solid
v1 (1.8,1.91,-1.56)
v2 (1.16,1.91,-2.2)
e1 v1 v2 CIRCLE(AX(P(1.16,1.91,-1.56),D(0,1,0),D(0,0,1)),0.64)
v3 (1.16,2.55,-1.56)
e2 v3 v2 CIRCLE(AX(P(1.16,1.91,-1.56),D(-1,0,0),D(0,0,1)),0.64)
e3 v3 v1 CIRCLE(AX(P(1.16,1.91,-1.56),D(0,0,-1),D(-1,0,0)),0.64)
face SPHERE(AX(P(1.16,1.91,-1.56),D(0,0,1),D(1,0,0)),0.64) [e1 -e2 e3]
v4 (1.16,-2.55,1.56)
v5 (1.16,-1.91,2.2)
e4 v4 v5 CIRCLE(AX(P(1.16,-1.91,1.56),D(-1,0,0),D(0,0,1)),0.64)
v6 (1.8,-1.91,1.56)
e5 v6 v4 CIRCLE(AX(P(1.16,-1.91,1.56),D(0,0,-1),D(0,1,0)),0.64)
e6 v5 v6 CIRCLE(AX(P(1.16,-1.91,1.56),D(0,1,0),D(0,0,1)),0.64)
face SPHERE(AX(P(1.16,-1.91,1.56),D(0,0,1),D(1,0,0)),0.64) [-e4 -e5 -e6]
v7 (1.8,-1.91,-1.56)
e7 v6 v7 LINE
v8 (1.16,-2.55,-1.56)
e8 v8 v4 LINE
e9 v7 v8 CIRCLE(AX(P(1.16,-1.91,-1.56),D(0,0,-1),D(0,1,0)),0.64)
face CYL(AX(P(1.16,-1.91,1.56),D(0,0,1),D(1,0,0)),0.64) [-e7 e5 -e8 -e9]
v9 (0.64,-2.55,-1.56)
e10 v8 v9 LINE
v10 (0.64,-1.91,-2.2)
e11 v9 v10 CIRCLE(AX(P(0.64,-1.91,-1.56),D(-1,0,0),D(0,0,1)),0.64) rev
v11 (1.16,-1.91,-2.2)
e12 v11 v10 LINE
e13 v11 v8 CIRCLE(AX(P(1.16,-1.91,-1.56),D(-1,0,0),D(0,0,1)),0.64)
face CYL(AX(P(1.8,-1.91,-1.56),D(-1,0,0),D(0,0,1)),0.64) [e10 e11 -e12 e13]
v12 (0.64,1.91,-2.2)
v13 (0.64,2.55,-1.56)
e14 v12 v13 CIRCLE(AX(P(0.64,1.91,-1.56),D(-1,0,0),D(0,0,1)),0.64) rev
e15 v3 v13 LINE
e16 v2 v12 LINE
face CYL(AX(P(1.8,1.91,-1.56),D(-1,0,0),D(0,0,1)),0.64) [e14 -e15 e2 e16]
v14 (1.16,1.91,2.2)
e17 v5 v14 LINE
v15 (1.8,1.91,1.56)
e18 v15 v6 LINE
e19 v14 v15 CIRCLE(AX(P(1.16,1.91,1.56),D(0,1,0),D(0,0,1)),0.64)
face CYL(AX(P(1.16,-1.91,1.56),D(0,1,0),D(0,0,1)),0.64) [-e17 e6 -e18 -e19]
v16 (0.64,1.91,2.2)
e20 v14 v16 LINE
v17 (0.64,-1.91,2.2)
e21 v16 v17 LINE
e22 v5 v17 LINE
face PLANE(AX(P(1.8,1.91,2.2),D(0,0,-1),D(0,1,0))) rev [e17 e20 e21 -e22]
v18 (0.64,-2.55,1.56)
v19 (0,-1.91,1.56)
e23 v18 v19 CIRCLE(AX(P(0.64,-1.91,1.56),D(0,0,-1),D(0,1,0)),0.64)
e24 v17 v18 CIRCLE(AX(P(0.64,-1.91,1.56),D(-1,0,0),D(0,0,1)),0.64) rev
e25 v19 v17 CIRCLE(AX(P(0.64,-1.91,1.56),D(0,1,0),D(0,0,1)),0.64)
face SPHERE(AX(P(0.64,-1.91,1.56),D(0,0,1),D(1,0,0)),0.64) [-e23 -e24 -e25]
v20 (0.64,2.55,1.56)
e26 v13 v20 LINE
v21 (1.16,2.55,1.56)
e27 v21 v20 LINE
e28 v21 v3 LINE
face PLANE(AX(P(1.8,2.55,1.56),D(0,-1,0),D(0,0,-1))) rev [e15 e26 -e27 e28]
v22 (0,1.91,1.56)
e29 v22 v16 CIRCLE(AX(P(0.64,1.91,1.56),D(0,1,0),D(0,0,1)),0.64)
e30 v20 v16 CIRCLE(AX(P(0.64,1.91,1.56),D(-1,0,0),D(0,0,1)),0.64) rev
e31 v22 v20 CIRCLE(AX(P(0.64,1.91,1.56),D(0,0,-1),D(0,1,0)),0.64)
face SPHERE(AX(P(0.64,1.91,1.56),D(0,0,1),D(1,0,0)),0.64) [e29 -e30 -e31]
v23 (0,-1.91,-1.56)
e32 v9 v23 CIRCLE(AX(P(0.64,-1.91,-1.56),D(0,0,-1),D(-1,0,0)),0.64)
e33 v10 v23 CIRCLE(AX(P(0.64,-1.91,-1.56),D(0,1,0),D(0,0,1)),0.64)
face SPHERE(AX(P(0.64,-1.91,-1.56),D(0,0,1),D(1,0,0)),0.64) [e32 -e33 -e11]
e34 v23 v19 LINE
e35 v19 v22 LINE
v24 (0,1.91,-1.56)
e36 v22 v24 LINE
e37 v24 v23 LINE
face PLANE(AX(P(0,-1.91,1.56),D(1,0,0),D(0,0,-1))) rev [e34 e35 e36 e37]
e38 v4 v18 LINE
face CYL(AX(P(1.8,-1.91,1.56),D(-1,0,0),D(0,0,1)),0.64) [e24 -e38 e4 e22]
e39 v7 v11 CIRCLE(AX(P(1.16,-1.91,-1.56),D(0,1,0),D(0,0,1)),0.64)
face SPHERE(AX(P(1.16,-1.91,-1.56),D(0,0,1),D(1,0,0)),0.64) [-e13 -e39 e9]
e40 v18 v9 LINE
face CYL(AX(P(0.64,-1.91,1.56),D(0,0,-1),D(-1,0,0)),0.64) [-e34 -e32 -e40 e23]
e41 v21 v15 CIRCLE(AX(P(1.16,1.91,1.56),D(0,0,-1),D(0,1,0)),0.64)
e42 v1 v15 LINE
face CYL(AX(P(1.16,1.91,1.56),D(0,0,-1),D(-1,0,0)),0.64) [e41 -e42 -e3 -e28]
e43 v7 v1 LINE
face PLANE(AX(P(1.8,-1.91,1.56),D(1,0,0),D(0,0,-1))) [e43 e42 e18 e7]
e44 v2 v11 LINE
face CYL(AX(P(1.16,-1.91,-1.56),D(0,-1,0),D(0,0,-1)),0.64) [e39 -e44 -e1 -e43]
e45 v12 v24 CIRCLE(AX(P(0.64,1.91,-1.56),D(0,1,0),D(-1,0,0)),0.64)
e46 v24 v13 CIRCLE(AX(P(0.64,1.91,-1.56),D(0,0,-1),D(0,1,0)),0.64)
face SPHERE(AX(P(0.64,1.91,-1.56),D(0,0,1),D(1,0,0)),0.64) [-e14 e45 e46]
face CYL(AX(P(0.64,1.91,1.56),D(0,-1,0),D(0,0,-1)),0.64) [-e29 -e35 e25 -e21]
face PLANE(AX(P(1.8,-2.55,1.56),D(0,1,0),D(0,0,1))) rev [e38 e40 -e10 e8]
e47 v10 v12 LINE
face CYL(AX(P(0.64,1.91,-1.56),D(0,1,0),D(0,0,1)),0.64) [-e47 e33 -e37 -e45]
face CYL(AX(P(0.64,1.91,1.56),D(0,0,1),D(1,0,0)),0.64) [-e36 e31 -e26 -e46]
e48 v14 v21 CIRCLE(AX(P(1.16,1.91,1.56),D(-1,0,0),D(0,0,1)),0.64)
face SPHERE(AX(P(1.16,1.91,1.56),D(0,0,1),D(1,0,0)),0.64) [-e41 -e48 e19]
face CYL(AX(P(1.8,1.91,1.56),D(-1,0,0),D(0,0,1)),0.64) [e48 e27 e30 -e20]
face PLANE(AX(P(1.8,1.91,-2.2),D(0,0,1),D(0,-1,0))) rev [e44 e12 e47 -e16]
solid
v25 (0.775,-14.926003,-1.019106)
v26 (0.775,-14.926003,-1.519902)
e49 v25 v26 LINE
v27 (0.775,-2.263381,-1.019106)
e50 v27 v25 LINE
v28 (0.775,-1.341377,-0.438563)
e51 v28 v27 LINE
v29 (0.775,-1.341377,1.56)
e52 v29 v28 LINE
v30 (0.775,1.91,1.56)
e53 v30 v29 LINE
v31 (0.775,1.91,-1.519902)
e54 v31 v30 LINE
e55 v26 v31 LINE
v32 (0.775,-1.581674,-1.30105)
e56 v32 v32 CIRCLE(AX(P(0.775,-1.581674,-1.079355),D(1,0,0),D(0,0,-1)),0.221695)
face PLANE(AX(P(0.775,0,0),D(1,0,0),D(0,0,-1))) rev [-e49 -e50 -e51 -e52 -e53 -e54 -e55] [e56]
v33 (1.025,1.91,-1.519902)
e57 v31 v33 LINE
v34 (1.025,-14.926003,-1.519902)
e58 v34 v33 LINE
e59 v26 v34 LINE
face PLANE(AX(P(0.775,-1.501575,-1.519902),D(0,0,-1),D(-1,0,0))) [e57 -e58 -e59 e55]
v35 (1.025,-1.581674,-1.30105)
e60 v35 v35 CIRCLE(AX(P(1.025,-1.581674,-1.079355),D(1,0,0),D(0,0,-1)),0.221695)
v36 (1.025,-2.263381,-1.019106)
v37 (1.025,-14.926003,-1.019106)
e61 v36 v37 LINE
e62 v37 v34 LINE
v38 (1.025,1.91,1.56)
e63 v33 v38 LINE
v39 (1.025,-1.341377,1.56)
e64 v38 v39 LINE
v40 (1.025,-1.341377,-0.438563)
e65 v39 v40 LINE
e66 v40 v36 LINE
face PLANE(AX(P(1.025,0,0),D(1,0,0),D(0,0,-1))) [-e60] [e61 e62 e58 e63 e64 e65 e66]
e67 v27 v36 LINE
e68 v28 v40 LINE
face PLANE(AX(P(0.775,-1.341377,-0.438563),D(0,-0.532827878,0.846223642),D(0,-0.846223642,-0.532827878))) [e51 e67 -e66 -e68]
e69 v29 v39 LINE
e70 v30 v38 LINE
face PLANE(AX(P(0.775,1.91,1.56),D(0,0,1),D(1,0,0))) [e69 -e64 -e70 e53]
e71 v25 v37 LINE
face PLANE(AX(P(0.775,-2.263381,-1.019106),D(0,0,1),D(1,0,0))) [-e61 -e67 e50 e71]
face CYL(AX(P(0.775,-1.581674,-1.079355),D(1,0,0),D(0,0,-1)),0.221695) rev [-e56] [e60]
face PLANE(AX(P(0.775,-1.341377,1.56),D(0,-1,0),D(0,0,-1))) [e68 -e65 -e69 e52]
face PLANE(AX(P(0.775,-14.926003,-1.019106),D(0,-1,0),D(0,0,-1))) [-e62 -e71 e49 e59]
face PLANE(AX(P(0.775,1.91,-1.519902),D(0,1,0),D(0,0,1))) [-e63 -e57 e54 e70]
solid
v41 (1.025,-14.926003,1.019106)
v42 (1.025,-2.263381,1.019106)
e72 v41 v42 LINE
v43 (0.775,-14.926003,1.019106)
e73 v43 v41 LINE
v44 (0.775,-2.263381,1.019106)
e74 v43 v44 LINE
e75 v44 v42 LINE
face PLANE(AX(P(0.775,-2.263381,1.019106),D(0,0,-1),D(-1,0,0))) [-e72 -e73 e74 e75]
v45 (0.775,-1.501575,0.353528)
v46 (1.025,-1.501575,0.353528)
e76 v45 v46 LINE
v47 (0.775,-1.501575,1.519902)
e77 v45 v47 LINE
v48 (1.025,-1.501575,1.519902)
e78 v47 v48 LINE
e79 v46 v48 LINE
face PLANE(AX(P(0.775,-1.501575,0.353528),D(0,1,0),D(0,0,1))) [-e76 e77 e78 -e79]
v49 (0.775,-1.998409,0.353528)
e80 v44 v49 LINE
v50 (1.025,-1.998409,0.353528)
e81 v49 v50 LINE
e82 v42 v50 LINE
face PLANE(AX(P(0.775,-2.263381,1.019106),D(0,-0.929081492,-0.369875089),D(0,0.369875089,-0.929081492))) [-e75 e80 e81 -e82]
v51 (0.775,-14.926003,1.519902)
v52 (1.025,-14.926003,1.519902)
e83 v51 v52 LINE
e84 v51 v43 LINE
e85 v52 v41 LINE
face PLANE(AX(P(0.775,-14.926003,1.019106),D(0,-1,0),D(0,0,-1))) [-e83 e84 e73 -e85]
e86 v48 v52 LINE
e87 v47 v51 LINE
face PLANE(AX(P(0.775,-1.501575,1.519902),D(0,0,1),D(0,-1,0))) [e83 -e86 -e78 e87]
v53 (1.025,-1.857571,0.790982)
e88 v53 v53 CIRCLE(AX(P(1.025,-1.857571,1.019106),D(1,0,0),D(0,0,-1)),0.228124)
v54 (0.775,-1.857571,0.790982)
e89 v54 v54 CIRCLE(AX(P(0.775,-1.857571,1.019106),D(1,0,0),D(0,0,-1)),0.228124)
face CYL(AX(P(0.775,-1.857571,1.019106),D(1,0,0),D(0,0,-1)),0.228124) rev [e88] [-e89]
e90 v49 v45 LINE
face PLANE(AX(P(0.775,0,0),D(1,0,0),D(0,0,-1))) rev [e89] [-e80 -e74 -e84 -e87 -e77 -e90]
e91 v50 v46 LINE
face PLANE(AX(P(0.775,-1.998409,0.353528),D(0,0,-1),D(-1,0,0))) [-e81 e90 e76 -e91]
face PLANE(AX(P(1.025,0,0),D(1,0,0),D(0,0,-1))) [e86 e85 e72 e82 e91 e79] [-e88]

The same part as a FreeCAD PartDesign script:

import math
import FreeCAD as App
import Part
import Sketcher

V = App.Vector


def edges_at(feature, points):
    """Names of the edges that pass closest to the given points."""
    edges = feature.Shape.Edges
    near = lambda p: min(range(len(edges)), key=lambda i: edges[i].distToShape(Part.Vertex(*p))[0])
    return sorted({f"Edge{near(p) + 1}" for p in points})


def add_polygon(sketch, points):
    """Adds a closed chain of lines whose ends are joined by coincident constraints."""
    first, n = sketch.GeometryCount, len(points)
    for a, b in zip(points, points[1:] + points[:1]):
        sketch.addGeometry(Part.LineSegment(App.Vector(*a, 0), App.Vector(*b, 0)), False)
    for i in range(n):
        sketch.addConstraint(Sketcher.Constraint("Coincident", first + i, 2, first + (i + 1) % n, 1))

doc = App.newDocument("Part")
body = doc.addObject("PartDesign::Body", "Body")

sketch1 = doc.addObject("Sketcher::SketchObject", "Sketch")
body.addObject(sketch1)
sketch1.AttachmentSupport = (doc.YZ_Plane, [""])
sketch1.MapMode = "FlatFace"
sketch1.addGeometry([
    Part.LineSegment(V(2.55, -1.56, 0), V(2.55, 1.56, 0)),
    Part.ArcOfCircle(Part.Circle(V(1.91, 1.56, 0), V(0, 0, 1), 0.64), math.radians(0), math.radians(90)),
    Part.LineSegment(V(1.91, 2.2, 0), V(-1.91, 2.2, 0)),
    Part.ArcOfCircle(Part.Circle(V(-1.91, 1.56, 0), V(0, 0, 1), 0.64), math.radians(90), math.radians(180)),
    Part.LineSegment(V(-2.55, 1.56, 0), V(-2.55, -1.56, 0)),
    Part.ArcOfCircle(Part.Circle(V(-1.91, -1.56, 0), V(0, 0, 1), 0.64), math.radians(180), math.radians(270)),
    Part.LineSegment(V(-1.91, -2.2, 0), V(1.91, -2.2, 0)),
    Part.ArcOfCircle(Part.Circle(V(1.91, -1.56, 0), V(0, 0, 1), 0.64), math.radians(-90), math.radians(0)),
], False)
sketch1.addConstraint([
    Sketcher.Constraint("Tangent", 0, 2, 1, 1),
    Sketcher.Constraint("Tangent", 1, 2, 2, 1),
    Sketcher.Constraint("Tangent", 2, 2, 3, 1),
    Sketcher.Constraint("Tangent", 3, 2, 4, 1),
    Sketcher.Constraint("Tangent", 4, 2, 5, 1),
    Sketcher.Constraint("Tangent", 5, 2, 6, 1),
    Sketcher.Constraint("Tangent", 6, 2, 7, 1),
    Sketcher.Constraint("Tangent", 7, 2, 0, 1),
    Sketcher.Constraint("Vertical", 0),
    Sketcher.Constraint("Horizontal", 2),
    Sketcher.Constraint("Vertical", 4),
    Sketcher.Constraint("Horizontal", 6),
    Sketcher.Constraint("Equal", 1, 3),
    Sketcher.Constraint("Equal", 3, 5),
    Sketcher.Constraint("Equal", 5, 7),
    Sketcher.Constraint("Symmetric", 1, 3, 5, 3, -1, 1),
    Sketcher.Constraint("Radius", 1, 0.64),
    Sketcher.Constraint("DistanceX", 2, 2, 2, 1, 3.82),
    Sketcher.Constraint("DistanceY", 0, 1, 0, 2, 3.12),
])
pad1 = doc.addObject("PartDesign::Pad", "Pad")
body.addObject(pad1)
pad1.Profile = sketch1
pad1.Length = 1.8
doc.recompute()

fillet = doc.addObject("PartDesign::Fillet", "Fillet")
body.addObject(fillet)
fillet.Base = (pad1, edges_at(pad1, [
    (1.8, -2.363, -2.013),
    (0, -2.55, 0),
    (0, -2.363, 2.013),
    (1.8, 0, -2.2),
    (1.8, 2.363, -2.013),
    (1.8, 2.55, 0),
    (1.8, 2.363, 2.013),
    (1.8, 0, 2.2),
    (1.8, -2.363, 2.013),
    (1.8, -2.55, 0),
    (0, 0, 2.2),
    (0, 2.363, 2.013),
    (0, 2.55, 0),
    (0, 2.363, -2.013),
    (0, 0, -2.2),
    (0, -2.363, -2.013),
]))
fillet.Radius = 0.64
body2 = doc.addObject("PartDesign::Body", "Body001")

sketch2 = doc.addObject("Sketcher::SketchObject", "Sketch001")
body2.addObject(sketch2)
sketch2.AttachmentSupport = (doc.getObject("YZ_Plane001"), [""])
sketch2.MapMode = "FlatFace"
sketch2.AttachmentOffset = App.Placement(V(0, 0, 0.9), App.Rotation())
add_polygon(sketch2, [(-14.926003, -1.019106), (-14.926003, -1.519902), (1.91, -1.519902), (1.91, 1.56), (-1.341377, 1.56), (-1.341377, -0.438563), (-2.263381, -1.019106)])
sketch2.addGeometry(Part.Circle(V(-1.581674, -1.079355, 0), V(0, 0, 1), 0.221695), False)
sketch2.addConstraint([
    Sketcher.Constraint("Vertical", 0),
    Sketcher.Constraint("Horizontal", 1),
    Sketcher.Constraint("Vertical", 2),
    Sketcher.Constraint("Horizontal", 3),
    Sketcher.Constraint("Vertical", 4),
    Sketcher.Constraint("Horizontal", 6),
    Sketcher.Constraint("Diameter", 7, 0.44339),
    Sketcher.Constraint("DistanceX", -1, 1, 1, 2, 1.91),
    Sketcher.Constraint("DistanceY", -1, 1, 2, 2, 1.56),
    Sketcher.Constraint("DistanceY", 2, 1, 2, 2, 3.079902),
    Sketcher.Constraint("DistanceX", 6, 2, 6, 1, 12.662622),
    Sketcher.Constraint("Distance", 5, 1.089552),
    Sketcher.Constraint("DistanceX", 1, 1, 1, 2, 16.836003),
    Sketcher.Constraint("DistanceX", 3, 2, 3, 1, 3.251377),
    Sketcher.Constraint("DistanceY", 0, 2, 0, 1, 0.500796),
    Sketcher.Constraint("DistanceX", 0, 2, 7, 3, 13.344329),
    Sketcher.Constraint("DistanceY", 7, 3, 5, 2, 0.060249),
])
pad2 = doc.addObject("PartDesign::Pad", "Pad001")
body2.addObject(pad2)
pad2.Profile = sketch2
pad2.Type = "TwoLengths"
pad2.Length = 0.125
pad2.Length2 = 0.125
body3 = doc.addObject("PartDesign::Body", "Body002")

sketch3 = doc.addObject("Sketcher::SketchObject", "Sketch002")
body3.addObject(sketch3)
sketch3.AttachmentSupport = (doc.getObject("YZ_Plane002"), [""])
sketch3.MapMode = "FlatFace"
sketch3.AttachmentOffset = App.Placement(V(0, 0, 0.9), App.Rotation())
add_polygon(sketch3, [(-2.263381, 1.019106), (-1.998409, 0.353528), (-1.501575, 0.353528), (-1.501575, 1.519902), (-14.926003, 1.519902), (-14.926003, 1.019106)])
sketch3.addGeometry(Part.Circle(V(-1.857571, 1.019106, 0), V(0, 0, 1), 0.228124), False)
sketch3.addConstraint([
    Sketcher.Constraint("Horizontal", 1),
    Sketcher.Constraint("Vertical", 2),
    Sketcher.Constraint("Horizontal", 3),
    Sketcher.Constraint("Vertical", 4),
    Sketcher.Constraint("Horizontal", 5),
    Sketcher.Constraint("Horizontal", 6, 3, 4, 2),
    Sketcher.Constraint("Diameter", 6, 0.456249),
    Sketcher.Constraint("DistanceX", 3, 2, 3, 1, 13.424428),
    Sketcher.Constraint("DistanceX", 5, 1, 5, 2, 12.662622),
    Sketcher.Constraint("DistanceY", -1, 1, 2, 2, 1.519902),
    Sketcher.Constraint("DistanceX", 1, 1, 1, 2, 0.496834),
    Sketcher.Constraint("DistanceY", 2, 1, 2, 2, 1.166374),
    Sketcher.Constraint("DistanceY", 4, 2, 4, 1, 0.500796),
    Sketcher.Constraint("DistanceX", 6, 3, -1, 1, 1.857571),
    Sketcher.Constraint("DistanceX", 0, 2, -1, 1, 1.998409),
])
pad3 = doc.addObject("PartDesign::Pad", "Pad002")
body3.addObject(pad3)
pad3.Profile = sketch3
pad3.Type = "TwoLengths"
pad3.Length = 0.125
pad3.Length2 = 0.125

doc.recompute()
